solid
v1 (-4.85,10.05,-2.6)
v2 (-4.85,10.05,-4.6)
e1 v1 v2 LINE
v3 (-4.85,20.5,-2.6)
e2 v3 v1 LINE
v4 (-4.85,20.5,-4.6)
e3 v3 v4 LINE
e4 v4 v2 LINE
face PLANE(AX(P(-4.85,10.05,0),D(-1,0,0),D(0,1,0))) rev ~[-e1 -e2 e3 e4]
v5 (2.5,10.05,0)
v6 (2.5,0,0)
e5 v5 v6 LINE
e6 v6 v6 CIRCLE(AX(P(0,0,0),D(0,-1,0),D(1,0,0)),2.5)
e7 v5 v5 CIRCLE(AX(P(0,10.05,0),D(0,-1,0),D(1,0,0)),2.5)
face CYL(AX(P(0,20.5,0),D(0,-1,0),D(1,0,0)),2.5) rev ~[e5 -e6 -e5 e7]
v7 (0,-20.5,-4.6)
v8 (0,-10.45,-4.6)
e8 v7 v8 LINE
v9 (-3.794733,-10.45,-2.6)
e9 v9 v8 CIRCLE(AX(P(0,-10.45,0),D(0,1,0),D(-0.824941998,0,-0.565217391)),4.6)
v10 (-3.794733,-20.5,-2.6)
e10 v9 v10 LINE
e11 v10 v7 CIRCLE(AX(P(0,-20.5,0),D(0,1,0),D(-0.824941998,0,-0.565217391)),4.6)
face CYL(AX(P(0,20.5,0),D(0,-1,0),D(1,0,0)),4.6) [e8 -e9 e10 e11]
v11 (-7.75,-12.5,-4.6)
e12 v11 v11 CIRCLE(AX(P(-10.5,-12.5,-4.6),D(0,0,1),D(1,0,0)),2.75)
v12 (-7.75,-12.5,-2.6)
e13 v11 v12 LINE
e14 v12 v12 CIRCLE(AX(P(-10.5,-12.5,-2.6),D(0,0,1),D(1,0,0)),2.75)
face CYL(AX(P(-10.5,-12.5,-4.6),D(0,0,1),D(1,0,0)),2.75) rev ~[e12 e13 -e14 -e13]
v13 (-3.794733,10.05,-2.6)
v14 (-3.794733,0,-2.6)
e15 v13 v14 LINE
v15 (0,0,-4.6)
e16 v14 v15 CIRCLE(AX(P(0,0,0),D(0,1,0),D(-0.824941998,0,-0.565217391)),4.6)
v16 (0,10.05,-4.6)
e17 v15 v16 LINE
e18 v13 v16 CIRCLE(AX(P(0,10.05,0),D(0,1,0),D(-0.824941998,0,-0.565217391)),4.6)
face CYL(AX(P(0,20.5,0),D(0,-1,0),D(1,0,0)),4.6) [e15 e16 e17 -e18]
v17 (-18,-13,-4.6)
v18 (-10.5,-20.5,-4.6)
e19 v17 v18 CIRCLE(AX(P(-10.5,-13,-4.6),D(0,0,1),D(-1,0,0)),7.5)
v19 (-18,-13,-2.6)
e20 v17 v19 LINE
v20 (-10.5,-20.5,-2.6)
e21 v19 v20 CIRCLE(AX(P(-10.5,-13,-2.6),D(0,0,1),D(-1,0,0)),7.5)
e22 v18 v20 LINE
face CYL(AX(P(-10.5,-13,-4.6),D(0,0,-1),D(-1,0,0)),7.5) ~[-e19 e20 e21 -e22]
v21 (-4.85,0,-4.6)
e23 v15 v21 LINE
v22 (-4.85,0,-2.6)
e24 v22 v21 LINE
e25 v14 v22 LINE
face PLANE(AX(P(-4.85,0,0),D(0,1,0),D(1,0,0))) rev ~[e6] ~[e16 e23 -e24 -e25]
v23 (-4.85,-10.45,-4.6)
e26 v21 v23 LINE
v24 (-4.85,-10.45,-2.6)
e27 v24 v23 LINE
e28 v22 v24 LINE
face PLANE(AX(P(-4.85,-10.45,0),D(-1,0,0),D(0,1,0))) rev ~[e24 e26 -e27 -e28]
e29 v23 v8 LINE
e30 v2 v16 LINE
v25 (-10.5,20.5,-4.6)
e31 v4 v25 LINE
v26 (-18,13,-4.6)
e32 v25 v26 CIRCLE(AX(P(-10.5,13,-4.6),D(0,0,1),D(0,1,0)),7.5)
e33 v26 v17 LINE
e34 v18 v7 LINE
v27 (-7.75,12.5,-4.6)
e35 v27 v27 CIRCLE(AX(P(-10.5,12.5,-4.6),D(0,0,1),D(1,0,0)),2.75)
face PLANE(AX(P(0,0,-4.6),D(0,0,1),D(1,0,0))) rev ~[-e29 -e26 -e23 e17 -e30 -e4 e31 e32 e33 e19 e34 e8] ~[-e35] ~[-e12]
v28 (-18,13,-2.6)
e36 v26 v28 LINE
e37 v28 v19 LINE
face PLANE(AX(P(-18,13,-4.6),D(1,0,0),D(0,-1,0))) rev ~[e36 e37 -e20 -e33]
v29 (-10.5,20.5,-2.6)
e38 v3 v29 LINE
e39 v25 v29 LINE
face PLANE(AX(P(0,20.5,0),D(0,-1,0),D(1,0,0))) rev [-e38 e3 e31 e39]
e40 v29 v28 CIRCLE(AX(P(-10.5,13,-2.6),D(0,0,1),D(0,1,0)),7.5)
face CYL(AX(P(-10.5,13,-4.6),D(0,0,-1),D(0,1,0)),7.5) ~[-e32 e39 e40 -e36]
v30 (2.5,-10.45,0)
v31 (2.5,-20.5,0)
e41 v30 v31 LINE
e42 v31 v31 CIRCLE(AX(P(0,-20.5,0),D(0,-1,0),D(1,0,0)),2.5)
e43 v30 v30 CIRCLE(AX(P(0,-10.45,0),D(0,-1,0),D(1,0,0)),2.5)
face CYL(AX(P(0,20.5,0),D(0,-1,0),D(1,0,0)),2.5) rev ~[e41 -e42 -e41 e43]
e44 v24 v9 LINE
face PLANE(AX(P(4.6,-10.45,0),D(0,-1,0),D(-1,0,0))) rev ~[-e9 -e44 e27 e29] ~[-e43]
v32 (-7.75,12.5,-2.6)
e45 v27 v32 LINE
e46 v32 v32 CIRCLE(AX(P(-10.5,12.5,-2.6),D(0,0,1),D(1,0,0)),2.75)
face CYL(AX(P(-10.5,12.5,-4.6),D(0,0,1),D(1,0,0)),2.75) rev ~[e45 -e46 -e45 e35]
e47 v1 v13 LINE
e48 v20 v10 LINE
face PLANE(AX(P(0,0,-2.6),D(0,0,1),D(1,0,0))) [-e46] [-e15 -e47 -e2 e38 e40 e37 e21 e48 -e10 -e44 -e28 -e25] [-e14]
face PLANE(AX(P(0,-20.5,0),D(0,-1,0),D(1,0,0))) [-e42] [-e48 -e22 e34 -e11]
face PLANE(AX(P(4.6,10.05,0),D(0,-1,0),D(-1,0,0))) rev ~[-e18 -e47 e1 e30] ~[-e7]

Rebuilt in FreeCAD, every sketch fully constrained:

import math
import FreeCAD as App
import Part
import Sketcher
from FreeCAD import Vector

doc = App.newDocument("Part")
params = doc.addObject("Spreadsheet::Sheet", "Params")
for row, (alias, value) in enumerate([
    ("sketch1_height", "41 mm"),
    ("sketch1_width", "4.6 mm"),
    ("revolution_angle", "360 deg"),
    ("sketch2_radius", "7.5 mm"),
    ("sketch2_height", "26 mm"),
    ("sketch2_width", "10.5 mm"),
    ("pad1_length", "2 mm"),
    ("sketch3_width", "82 mm"),
    ("sketch3_height", "41 mm"),
    ("sketch3_width2", "22.6 mm"),
    ("sketch3_width3", "13.15 mm"),
    ("sketch3_height2", "10.45 mm"),
    ("pocket1_length", "82 mm"),
    ("sketch4_height", "41 mm"),
    ("sketch4_width", "2.5 mm"),
    ("groove_angle", "360 deg"),
    ("sketch5_height", "2 mm"),
    ("sketch5_width", "2.75 mm"),
    ("groove2_angle", "360 deg"),
    ("sketch6_height", "2 mm"),
    ("sketch6_width", "2.75 mm"),
    ("groove3_angle", "360 deg"),
], start=1):
    params.set(f"A{row}", alias)
    params.set(f"B{row}", "=" + value)
    params.setAlias(f"B{row}", alias)

body = doc.addObject("PartDesign::Body", "Body")

sketch1 = body.newObject("Sketcher::SketchObject", "Sketch")
sketch1.AttachmentSupport = (doc.getObject("XY_Plane"), [""])
sketch1.MapMode = "FlatFace"
sketch1.addGeometry([
    Part.LineSegment(Vector(0, 20.5, 0), Vector(0, -20.5, 0)),
    Part.LineSegment(Vector(0, -20.5, 0), Vector(4.6, -20.5, 0)),
    Part.LineSegment(Vector(4.6, -20.5, 0), Vector(4.6, 20.5, 0)),
    Part.LineSegment(Vector(4.6, 20.5, 0), Vector(0, 20.5, 0)),
], False)
sketch1.addConstraint([
    Sketcher.Constraint("Coincident", 0, 2, 1, 1),
    Sketcher.Constraint("Coincident", 1, 2, 2, 1),
    Sketcher.Constraint("Coincident", 2, 2, 3, 1),
    Sketcher.Constraint("Coincident", 3, 2, 0, 1),
    Sketcher.Constraint("Vertical", 0),
    Sketcher.Constraint("Horizontal", 1),
    Sketcher.Constraint("Vertical", 2),
    Sketcher.Constraint("Horizontal", 3),
    Sketcher.Constraint("Symmetric", 0, 2, 3, 2, -1, 1),
    Sketcher.Constraint("DistanceY", 0, 2, 0, 1, 41.0),
    Sketcher.Constraint("DistanceX", 1, 1, 1, 2, 4.6),
])
sketch1.setExpression("Constraints[9]", "Params.sketch1_height")
sketch1.setExpression("Constraints[10]", "Params.sketch1_width")
revolution = body.newObject("PartDesign::Revolution", "Revolution")
revolution.Profile = sketch1
revolution.ReferenceAxis = (sketch1, ["V_Axis"])
revolution.setExpression("Angle", "Params.revolution_angle")

sketch2 = body.newObject("Sketcher::SketchObject", "Sketch001")
sketch2.AttachmentSupport = (doc.getObject("XY_Plane"), [""])
sketch2.MapMode = "FlatFace"
sketch2.AttachmentOffset = App.Placement(Vector(0, 0, -4.6), App.Rotation())
sketch2.addGeometry([
    Part.ArcOfCircle(Part.Circle(Vector(-10.5, 13, 0), Vector(0, 0, 1), 7.5), math.radians(90), math.radians(180)),
    Part.LineSegment(Vector(-18, 13, 0), Vector(-18, -13, 0)),
    Part.ArcOfCircle(Part.Circle(Vector(-10.5, -13, 0), Vector(0, 0, 1), 7.5), math.radians(180), math.radians(270)),
    Part.LineSegment(Vector(-10.5, -20.5, 0), Vector(0, -20.5, 0)),
    Part.LineSegment(Vector(0, -20.5, 0), Vector(0, 20.5, 0)),
    Part.LineSegment(Vector(0, 20.5, 0), Vector(-10.5, 20.5, 0)),
], False)
sketch2.addConstraint([
    Sketcher.Constraint("Tangent", 0, 2, 1, 1),
    Sketcher.Constraint("Tangent", 1, 2, 2, 1),
    Sketcher.Constraint("Tangent", 2, 2, 3, 1),
    Sketcher.Constraint("Coincident", 3, 2, 4, 1),
    Sketcher.Constraint("Coincident", 4, 2, 5, 1),
    Sketcher.Constraint("Tangent", 5, 2, 0, 1),
    Sketcher.Constraint("Vertical", 1),
    Sketcher.Constraint("Horizontal", 3),
    Sketcher.Constraint("Vertical", 4),
    Sketcher.Constraint("Horizontal", 5),
    Sketcher.Constraint("Equal", 0, 2),
    Sketcher.Constraint("Symmetric", 3, 2, 4, 2, -1, 1),
    Sketcher.Constraint("Radius", 0, 7.5),
    Sketcher.Constraint("DistanceY", 1, 2, 1, 1, 26.0),
    Sketcher.Constraint("DistanceX", 3, 1, 3, 2, 10.5),
])
sketch2.setExpression("Constraints[12]", "Params.sketch2_radius")
sketch2.setExpression("Constraints[13]", "Params.sketch2_height")
sketch2.setExpression("Constraints[14]", "Params.sketch2_width")
pad1 = body.newObject("PartDesign::Pad", "Pad")
pad1.Profile = sketch2
pad1.setExpression("Length", "Params.pad1_length")

sketch3 = body.newObject("Sketcher::SketchObject", "Sketch002")
sketch3.AttachmentSupport = (doc.getObject("XY_Plane"), [""])
sketch3.MapMode = "FlatFace"
sketch3.addGeometry([
    Part.LineSegment(Vector(41, 41, 0), Vector(-41, 41, 0)),
    Part.LineSegment(Vector(-41, 41, 0), Vector(-41, -41, 0)),
    Part.LineSegment(Vector(-41, -41, 0), Vector(41, -41, 0)),
    Part.LineSegment(Vector(41, -41, 0), Vector(41, 41, 0)),
    Part.LineSegment(Vector(-18, -20.5, 0), Vector(-18, 20.5, 0)),
    Part.LineSegment(Vector(-18, 20.5, 0), Vector(-4.85, 20.5, 0)),
    Part.LineSegment(Vector(-4.85, 20.5, 0), Vector(-4.85, 10.05, 0)),
    Part.LineSegment(Vector(-4.85, 10.05, 0), Vector(4.6, 10.05, 0)),
    Part.LineSegment(Vector(4.6, 10.05, 0), Vector(4.6, 0, 0)),
    Part.LineSegment(Vector(4.6, 0, 0), Vector(-4.85, 0, 0)),
    Part.LineSegment(Vector(-4.85, 0, 0), Vector(-4.85, -10.45, 0)),
    Part.LineSegment(Vector(-4.85, -10.45, 0), Vector(4.6, -10.45, 0)),
    Part.LineSegment(Vector(4.6, -10.45, 0), Vector(4.6, -20.5, 0)),
    Part.LineSegment(Vector(4.6, -20.5, 0), Vector(-18, -20.5, 0)),
], False)
sketch3.addConstraint([
    Sketcher.Constraint("Coincident", 0, 2, 1, 1),
    Sketcher.Constraint("Coincident", 1, 2, 2, 1),
    Sketcher.Constraint("Coincident", 2, 2, 3, 1),
    Sketcher.Constraint("Coincident", 3, 2, 0, 1),
    Sketcher.Constraint("Coincident", 4, 2, 5, 1),
    Sketcher.Constraint("Coincident", 5, 2, 6, 1),
    Sketcher.Constraint("Coincident", 6, 2, 7, 1),
    Sketcher.Constraint("Coincident", 7, 2, 8, 1),
    Sketcher.Constraint("Coincident", 8, 2, 9, 1),
    Sketcher.Constraint("Coincident", 9, 2, 10, 1),
    Sketcher.Constraint("Coincident", 10, 2, 11, 1),
    Sketcher.Constraint("Coincident", 11, 2, 12, 1),
    Sketcher.Constraint("Coincident", 12, 2, 13, 1),
    Sketcher.Constraint("Coincident", 13, 2, 4, 1),
    Sketcher.Constraint("Horizontal", 0),
    Sketcher.Constraint("Vertical", 1),
    Sketcher.Constraint("Horizontal", 2),
    Sketcher.Constraint("Vertical", 3),
    Sketcher.Constraint("Vertical", 4),
    Sketcher.Constraint("Horizontal", 5),
    Sketcher.Constraint("Vertical", 6),
    Sketcher.Constraint("Horizontal", 7),
    Sketcher.Constraint("Vertical", 8),
    Sketcher.Constraint("Horizontal", 9),
    Sketcher.Constraint("Vertical", 10),
    Sketcher.Constraint("Horizontal", 11),
    Sketcher.Constraint("Vertical", 12),
    Sketcher.Constraint("Horizontal", 13),
    Sketcher.Constraint("Symmetric", 0, 2, 2, 2, -1, 1),
    Sketcher.Constraint("PointOnObject", 8, 2, -1),
    Sketcher.Constraint("Vertical", 6, 2, 9, 2),
    Sketcher.Constraint("Vertical", 8, 2, 11, 2),
    Sketcher.Constraint("Equal", 2, 1),
    Sketcher.Constraint("Equal", 6, 10),
    Sketcher.Constraint("Equal", 8, 12),
    Sketcher.Constraint("DistanceX", 0, 2, 0, 1, 82.0),
    Sketcher.Constraint("DistanceY", 4, 1, 4, 2, 41.0),
    Sketcher.Constraint("DistanceX", 13, 2, 13, 1, 22.6),
    Sketcher.Constraint("DistanceX", 4, 2, -1, 1, 18.0),
    Sketcher.Constraint("DistanceX", 5, 1, 5, 2, 13.15),
    Sketcher.Constraint("DistanceY", 6, 2, 6, 1, 10.45),
])
sketch3.setExpression("Constraints[35]", "Params.sketch3_width")
sketch3.setExpression("Constraints[36]", "Params.sketch3_height")
sketch3.setExpression("Constraints[37]", "Params.sketch3_width2")
sketch3.setExpression("Constraints[39]", "Params.sketch3_width3")
sketch3.setExpression("Constraints[40]", "Params.sketch3_height2")
pocket1 = body.newObject("PartDesign::Pocket", "Pocket")
pocket1.Profile = sketch3
pocket1.setExpression("Length", "Params.pocket1_length")
pocket1.Midplane = True

sketch4 = body.newObject("Sketcher::SketchObject", "Sketch003")
sketch4.AttachmentSupport = (doc.getObject("XY_Plane"), [""])
sketch4.MapMode = "FlatFace"
sketch4.addGeometry([
    Part.LineSegment(Vector(0, 20.5, 0), Vector(0, -20.5, 0)),
    Part.LineSegment(Vector(0, -20.5, 0), Vector(2.5, -20.5, 0)),
    Part.LineSegment(Vector(2.5, -20.5, 0), Vector(2.5, 20.5, 0)),
    Part.LineSegment(Vector(2.5, 20.5, 0), Vector(0, 20.5, 0)),
], False)
sketch4.addConstraint([
    Sketcher.Constraint("Coincident", 0, 2, 1, 1),
    Sketcher.Constraint("Coincident", 1, 2, 2, 1),
    Sketcher.Constraint("Coincident", 2, 2, 3, 1),
    Sketcher.Constraint("Coincident", 3, 2, 0, 1),
    Sketcher.Constraint("Vertical", 0),
    Sketcher.Constraint("Horizontal", 1),
    Sketcher.Constraint("Vertical", 2),
    Sketcher.Constraint("Horizontal", 3),
    Sketcher.Constraint("Symmetric", 0, 2, 3, 2, -1, 1),
    Sketcher.Constraint("DistanceY", 0, 2, 0, 1, 41.0),
    Sketcher.Constraint("DistanceX", 1, 1, 1, 2, 2.5),
])
sketch4.setExpression("Constraints[9]", "Params.sketch4_height")
sketch4.setExpression("Constraints[10]", "Params.sketch4_width")
groove = body.newObject("PartDesign::Groove", "Groove")
groove.Profile = sketch4
groove.ReferenceAxis = (sketch4, ["V_Axis"])
groove.setExpression("Angle", "Params.groove_angle")

sketch5 = body.newObject("Sketcher::SketchObject", "Sketch004")
sketch5.AttachmentSupport = (doc.getObject("XZ_Plane"), [""])
sketch5.MapMode = "FlatFace"
sketch5.AttachmentOffset = App.Placement(Vector(0, 0, -12.5), App.Rotation())
sketch5.addGeometry([
    Part.LineSegment(Vector(-10.5, -4.6, 0), Vector(-10.5, -2.6, 0)),
    Part.LineSegment(Vector(-10.5, -2.6, 0), Vector(-7.75, -2.6, 0)),
    Part.LineSegment(Vector(-7.75, -2.6, 0), Vector(-7.75, -4.6, 0)),
    Part.LineSegment(Vector(-7.75, -4.6, 0), Vector(-10.5, -4.6, 0)),
], False)
sketch5.addGeometry(Part.LineSegment(Vector(-10.5, -4.6, 0), Vector(-10.5, -2.6, 0)), True)
sketch5.addConstraint([
    Sketcher.Constraint("Coincident", 0, 2, 1, 1),
    Sketcher.Constraint("Coincident", 1, 2, 2, 1),
    Sketcher.Constraint("Coincident", 2, 2, 3, 1),
    Sketcher.Constraint("Coincident", 3, 2, 0, 1),
    Sketcher.Constraint("Vertical", 0),
    Sketcher.Constraint("Horizontal", 1),
    Sketcher.Constraint("Vertical", 2),
    Sketcher.Constraint("Horizontal", 3),
    Sketcher.Constraint("Vertical", 4),
    Sketcher.Constraint("Coincident", 4, 1, 3, 2),
    Sketcher.Constraint("Horizontal", 1, 2, 4, 2),
    Sketcher.Constraint("DistanceY", 0, 1, 0, 2, 2.0),
    Sketcher.Constraint("DistanceX", 1, 1, 1, 2, 2.75),
    Sketcher.Constraint("DistanceX", 0, 2, -1, 1, 10.5),
    Sketcher.Constraint("DistanceY", 0, 2, -1, 1, 2.6),
])
sketch5.setExpression("Constraints[11]", "Params.sketch5_height")
sketch5.setExpression("Constraints[12]", "Params.sketch5_width")
groove2 = body.newObject("PartDesign::Groove", "Groove001")
groove2.Profile = sketch5
groove2.ReferenceAxis = (sketch5, ["Axis0"])
groove2.setExpression("Angle", "Params.groove2_angle")

sketch6 = body.newObject("Sketcher::SketchObject", "Sketch005")
sketch6.AttachmentSupport = (doc.getObject("XZ_Plane"), [""])
sketch6.MapMode = "FlatFace"
sketch6.AttachmentOffset = App.Placement(Vector(0, 0, 12.5), App.Rotation())
sketch6.addGeometry([
    Part.LineSegment(Vector(-10.5, -4.6, 0), Vector(-10.5, -2.6, 0)),
    Part.LineSegment(Vector(-10.5, -2.6, 0), Vector(-7.75, -2.6, 0)),
    Part.LineSegment(Vector(-7.75, -2.6, 0), Vector(-7.75, -4.6, 0)),
    Part.LineSegment(Vector(-7.75, -4.6, 0), Vector(-10.5, -4.6, 0)),
], False)
sketch6.addGeometry(Part.LineSegment(Vector(-10.5, -4.6, 0), Vector(-10.5, -2.6, 0)), True)
sketch6.addConstraint([
    Sketcher.Constraint("Coincident", 0, 2, 1, 1),
    Sketcher.Constraint("Coincident", 1, 2, 2, 1),
    Sketcher.Constraint("Coincident", 2, 2, 3, 1),
    Sketcher.Constraint("Coincident", 3, 2, 0, 1),
    Sketcher.Constraint("Vertical", 0),
    Sketcher.Constraint("Horizontal", 1),
    Sketcher.Constraint("Vertical", 2),
    Sketcher.Constraint("Horizontal", 3),
    Sketcher.Constraint("Vertical", 4),
    Sketcher.Constraint("Coincident", 4, 1, 3, 2),
    Sketcher.Constraint("Horizontal", 1, 2, 4, 2),
    Sketcher.Constraint("DistanceY", 0, 1, 0, 2, 2.0),
    Sketcher.Constraint("DistanceX", 1, 1, 1, 2, 2.75),
    Sketcher.Constraint("DistanceX", 0, 2, -1, 1, 10.5),
    Sketcher.Constraint("DistanceY", 0, 2, -1, 1, 2.6),
])
sketch6.setExpression("Constraints[11]", "Params.sketch6_height")
sketch6.setExpression("Constraints[12]", "Params.sketch6_width")
groove3 = body.newObject("PartDesign::Groove", "Groove002")
groove3.Profile = sketch6
groove3.ReferenceAxis = (sketch6, ["Axis0"])
groove3.setExpression("Angle", "Params.groove3_angle")

doc.recompute()
